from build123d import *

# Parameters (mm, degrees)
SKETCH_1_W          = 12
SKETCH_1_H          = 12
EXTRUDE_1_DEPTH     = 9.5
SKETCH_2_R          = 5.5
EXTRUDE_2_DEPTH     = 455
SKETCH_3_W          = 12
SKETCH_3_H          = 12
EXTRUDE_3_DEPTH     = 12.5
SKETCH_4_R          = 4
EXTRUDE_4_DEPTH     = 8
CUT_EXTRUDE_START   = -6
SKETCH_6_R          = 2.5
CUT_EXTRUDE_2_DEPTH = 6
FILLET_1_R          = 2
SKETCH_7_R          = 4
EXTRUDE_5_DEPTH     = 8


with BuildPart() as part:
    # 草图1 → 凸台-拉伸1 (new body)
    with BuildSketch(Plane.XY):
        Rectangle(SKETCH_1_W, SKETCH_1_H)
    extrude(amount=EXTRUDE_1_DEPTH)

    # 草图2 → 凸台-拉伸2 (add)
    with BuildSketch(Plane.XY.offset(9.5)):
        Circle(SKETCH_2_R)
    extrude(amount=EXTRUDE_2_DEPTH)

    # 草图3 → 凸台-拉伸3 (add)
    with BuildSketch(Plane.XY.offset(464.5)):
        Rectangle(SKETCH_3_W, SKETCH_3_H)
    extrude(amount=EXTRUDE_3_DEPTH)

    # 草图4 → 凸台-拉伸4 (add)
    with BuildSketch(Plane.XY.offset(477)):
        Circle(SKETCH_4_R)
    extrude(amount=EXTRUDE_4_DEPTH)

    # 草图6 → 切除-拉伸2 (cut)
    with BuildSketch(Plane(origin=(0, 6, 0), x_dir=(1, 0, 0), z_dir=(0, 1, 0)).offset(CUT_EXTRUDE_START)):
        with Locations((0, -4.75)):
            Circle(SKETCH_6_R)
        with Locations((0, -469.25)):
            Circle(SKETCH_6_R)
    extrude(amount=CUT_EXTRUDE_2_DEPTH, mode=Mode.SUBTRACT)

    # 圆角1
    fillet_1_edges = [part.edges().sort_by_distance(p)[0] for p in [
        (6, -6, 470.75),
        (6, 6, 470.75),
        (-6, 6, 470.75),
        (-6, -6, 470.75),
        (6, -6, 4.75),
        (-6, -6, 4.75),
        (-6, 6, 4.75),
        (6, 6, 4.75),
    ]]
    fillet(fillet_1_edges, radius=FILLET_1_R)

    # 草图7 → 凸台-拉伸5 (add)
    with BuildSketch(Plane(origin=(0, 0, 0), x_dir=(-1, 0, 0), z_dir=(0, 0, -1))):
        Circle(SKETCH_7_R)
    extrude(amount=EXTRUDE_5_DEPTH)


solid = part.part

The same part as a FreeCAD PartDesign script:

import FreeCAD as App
import Part
import Sketcher

V = App.Vector
Q = App.Units.Quantity


def edges_at(feature, points):
    """Names of the edges that pass closest to the given points."""
    edges = feature.Shape.Edges
    near = lambda p: min(range(len(edges)), key=lambda i: edges[i].distToShape(Part.Vertex(*p))[0])
    return sorted({f"Edge{near(p) + 1}" for p in points})

doc = App.newDocument("Part")
params = doc.addObject("Spreadsheet::Sheet", "Params")
for row, (alias, value) in enumerate([
    ("sketch1_width", "12 mm"),
    ("pad1_length", "9.5 mm"),
    ("sketch2_diameter", "11 mm"),
    ("pad2_length", "455 mm"),
    ("sketch3_width", "12 mm"),
    ("pad3_length", "12.5 mm"),
    ("sketch4_diameter", "8 mm"),
    ("pad4_length", "8 mm"),
    ("sketch5_diameter", "5 mm"),
    ("pocket1_length", "6 mm"),
    ("fillet_radius", "2 mm"),
    ("sketch6_diameter", "8 mm"),
    ("pad5_length", "8 mm"),
], start=1):
    params.set(f"A{row}", alias)
    params.set(f"B{row}", "=" + value)
    params.setAlias(f"B{row}", alias)

body = doc.addObject("PartDesign::Body", "Body")

sketch1 = body.newObject("Sketcher::SketchObject", "Sketch")
sketch1.AttachmentSupport = (doc.getObject("XY_Plane"), [""])
sketch1.MapMode = "FlatFace"
sketch1.addGeometry([
    Part.LineSegment(V(-6, 6, 0), V(-6, -6, 0)),
    Part.LineSegment(V(-6, -6, 0), V(6, -6, 0)),
    Part.LineSegment(V(6, -6, 0), V(6, 6, 0)),
    Part.LineSegment(V(6, 6, 0), V(-6, 6, 0)),
], False)
sketch1.addConstraint([
    Sketcher.Constraint("Coincident", 0, 2, 1, 1),
    Sketcher.Constraint("Coincident", 1, 2, 2, 1),
    Sketcher.Constraint("Coincident", 2, 2, 3, 1),
    Sketcher.Constraint("Coincident", 3, 2, 0, 1),
    Sketcher.Constraint("Vertical", 0),
    Sketcher.Constraint("Horizontal", 1),
    Sketcher.Constraint("Vertical", 2),
    Sketcher.Constraint("Horizontal", 3),
    Sketcher.Constraint("Symmetric", 0, 2, 2, 2, -1, 1),
    Sketcher.Constraint("Equal", 3, 0),
    Sketcher.Constraint("DistanceX", 1, 1, 1, 2, Q("12 mm")),
])
sketch1.setExpression("Constraints[10]", "Params.sketch1_width")
pad1 = body.newObject("PartDesign::Pad", "Pad")
pad1.Profile = sketch1
pad1.setExpression("Length", "Params.pad1_length")

sketch2 = body.newObject("Sketcher::SketchObject", "Sketch001")
sketch2.AttachmentSupport = (doc.getObject("XY_Plane"), [""])
sketch2.MapMode = "FlatFace"
sketch2.AttachmentOffset = App.Placement(V(0, 0, 9.5), App.Rotation())
sketch2.addGeometry(Part.Circle(V(0, 0, 0), V(0, 0, 1), 5.5), False)
sketch2.addConstraint([
    Sketcher.Constraint("Coincident", 0, 3, -1, 1),
    Sketcher.Constraint("Diameter", 0, Q("11 mm")),
])
sketch2.setExpression("Constraints[1]", "Params.sketch2_diameter")
pad2 = body.newObject("PartDesign::Pad", "Pad001")
pad2.Profile = sketch2
pad2.setExpression("Length", "Params.pad2_length")

sketch3 = body.newObject("Sketcher::SketchObject", "Sketch002")
sketch3.AttachmentSupport = (doc.getObject("XY_Plane"), [""])
sketch3.MapMode = "FlatFace"
sketch3.AttachmentOffset = App.Placement(V(0, 0, 464.5), App.Rotation())
sketch3.addGeometry([
    Part.LineSegment(V(-6, 6, 0), V(-6, -6, 0)),
    Part.LineSegment(V(-6, -6, 0), V(6, -6, 0)),
    Part.LineSegment(V(6, -6, 0), V(6, 6, 0)),
    Part.LineSegment(V(6, 6, 0), V(-6, 6, 0)),
], False)
sketch3.addConstraint([
    Sketcher.Constraint("Coincident", 0, 2, 1, 1),
    Sketcher.Constraint("Coincident", 1, 2, 2, 1),
    Sketcher.Constraint("Coincident", 2, 2, 3, 1),
    Sketcher.Constraint("Coincident", 3, 2, 0, 1),
    Sketcher.Constraint("Vertical", 0),
    Sketcher.Constraint("Horizontal", 1),
    Sketcher.Constraint("Vertical", 2),
    Sketcher.Constraint("Horizontal", 3),
    Sketcher.Constraint("Symmetric", 0, 2, 2, 2, -1, 1),
    Sketcher.Constraint("Equal", 3, 0),
    Sketcher.Constraint("DistanceX", 1, 1, 1, 2, Q("12 mm")),
])
sketch3.setExpression("Constraints[10]", "Params.sketch3_width")
pad3 = body.newObject("PartDesign::Pad", "Pad002")
pad3.Profile = sketch3
pad3.setExpression("Length", "Params.pad3_length")

sketch4 = body.newObject("Sketcher::SketchObject", "Sketch003")
sketch4.AttachmentSupport = (doc.getObject("XY_Plane"), [""])
sketch4.MapMode = "FlatFace"
sketch4.AttachmentOffset = App.Placement(V(0, 0, 477), App.Rotation())
sketch4.addGeometry(Part.Circle(V(0, 0, 0), V(0, 0, 1), 4), False)
sketch4.addConstraint([
    Sketcher.Constraint("Coincident", 0, 3, -1, 1),
    Sketcher.Constraint("Diameter", 0, Q("8 mm")),
])
sketch4.setExpression("Constraints[1]", "Params.sketch4_diameter")
pad4 = body.newObject("PartDesign::Pad", "Pad003")
pad4.Profile = sketch4
pad4.setExpression("Length", "Params.pad4_length")

sketch5 = body.newObject("Sketcher::SketchObject", "Sketch004")
sketch5.AttachmentSupport = (doc.getObject("XZ_Plane"), [""])
sketch5.MapMode = "FlatFace"
sketch5.addGeometry([
    Part.Circle(V(0, 4.75, 0), V(0, 0, 1), 2.5),
    Part.Circle(V(0, 469.25, 0), V(0, 0, 1), 2.5),
], False)
sketch5.addConstraint([
    Sketcher.Constraint("Equal", 0, 1),
    Sketcher.Constraint("PointOnObject", 0, 3, -2),
    Sketcher.Constraint("PointOnObject", 1, 3, -2),
    Sketcher.Constraint("Diameter", 0, Q("5 mm")),
    Sketcher.Constraint("DistanceY", 0, 3, 1, 3, Q("464.5 mm")),
    Sketcher.Constraint("DistanceY", -1, 1, 0, 3, Q("4.75 mm")),
])
sketch5.setExpression("Constraints[3]", "Params.sketch5_diameter")
pocket1 = body.newObject("PartDesign::Pocket", "Pocket")
pocket1.Profile = sketch5
pocket1.setExpression("Length", "Params.pocket1_length")
doc.recompute()

fillet = body.newObject("PartDesign::Fillet", "Fillet")
fillet.Base = (pocket1, edges_at(pocket1, [
    (6, -6, 470.75),
    (6, 6, 470.75),
    (-6, 6, 470.75),
    (-6, -6, 470.75),
    (6, -6, 4.75),
    (-6, -6, 4.75),
    (-6, 6, 4.75),
    (6, 6, 4.75),
]))
fillet.setExpression("Radius", "Params.fillet_radius")

sketch6 = body.newObject("Sketcher::SketchObject", "Sketch005")
sketch6.AttachmentSupport = (doc.getObject("XY_Plane"), [""])
sketch6.MapMode = "FlatFace"
sketch6.addGeometry(Part.Circle(V(0, 0, 0), V(0, 0, 1), 4), False)
sketch6.addConstraint([
    Sketcher.Constraint("Coincident", 0, 3, -1, 1),
    Sketcher.Constraint("Diameter", 0, Q("8 mm")),
])
sketch6.setExpression("Constraints[1]", "Params.sketch6_diameter")
pad5 = body.newObject("PartDesign::Pad", "Pad004")
pad5.Profile = sketch6
pad5.setExpression("Length", "Params.pad5_length")
pad5.Reversed = True

doc.recompute()
